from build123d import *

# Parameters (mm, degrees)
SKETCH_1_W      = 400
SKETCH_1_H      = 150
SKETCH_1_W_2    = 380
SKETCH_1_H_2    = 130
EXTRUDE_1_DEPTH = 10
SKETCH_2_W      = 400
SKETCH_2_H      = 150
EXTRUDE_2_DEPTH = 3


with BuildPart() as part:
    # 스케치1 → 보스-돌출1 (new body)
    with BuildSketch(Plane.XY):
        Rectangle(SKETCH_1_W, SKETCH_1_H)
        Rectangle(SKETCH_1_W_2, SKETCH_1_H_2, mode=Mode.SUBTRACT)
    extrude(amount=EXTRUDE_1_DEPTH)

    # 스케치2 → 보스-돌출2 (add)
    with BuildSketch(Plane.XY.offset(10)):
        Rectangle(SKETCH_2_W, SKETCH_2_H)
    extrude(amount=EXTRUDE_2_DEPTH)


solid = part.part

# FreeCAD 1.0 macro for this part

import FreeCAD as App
import Part
import Sketcher


def add_polygon(sketch, points):
    """Adds a closed chain of lines whose ends are joined by coincident constraints."""
    first, n = sketch.GeometryCount, len(points)
    for a, b in zip(points, points[1:] + points[:1]):
        sketch.addGeometry(Part.LineSegment(App.Vector(*a, 0), App.Vector(*b, 0)), False)
    for i in range(n):
        sketch.addConstraint(Sketcher.Constraint("Coincident", first + i, 2, first + (i + 1) % n, 1))

doc = App.newDocument("Part")
body = doc.addObject("PartDesign::Body", "Body")

# Sketch on XY plane
sketch1 = body.newObject("Sketcher::SketchObject", "Sketch")
sketch1.AttachmentSupport = (doc.getObject("XY_Plane"), [""])
sketch1.MapMode = "FlatFace"
add_polygon(sketch1, [(-200, 75), (-200, -75), (200, -75), (200, 75)])  # lines 0-3
add_polygon(sketch1, [(190, -65), (-190, -65), (-190, 65), (190, 65)])  # lines 4-7
sketch1.addConstraint([
    Sketcher.Constraint("Vertical", 0),
    Sketcher.Constraint("Horizontal", 1),
    Sketcher.Constraint("Vertical", 2),
    Sketcher.Constraint("Horizontal", 3),
    Sketcher.Constraint("Horizontal", 4),
    Sketcher.Constraint("Vertical", 5),
    Sketcher.Constraint("Horizontal", 6),
    Sketcher.Constraint("Vertical", 7),
    Sketcher.Constraint("Symmetric", 0, 2, 2, 2, -1, 1),
    Sketcher.Constraint("Symmetric", 4, 2, 6, 2, -1, 1),
    Sketcher.Constraint("DistanceX", 1, 1, 1, 2, 400.0),
    Sketcher.Constraint("DistanceX", 4, 2, 4, 1, 380.0),
    Sketcher.Constraint("DistanceY", 0, 2, 0, 1, 150.0),
    Sketcher.Constraint("DistanceY", 5, 1, 5, 2, 130.0),
])
pad1 = body.newObject("PartDesign::Pad", "Pad")
pad1.Profile = sketch1
pad1.Length = 10

# Sketch on XY plane
sketch2 = body.newObject("Sketcher::SketchObject", "Sketch001")
sketch2.AttachmentSupport = (doc.getObject("XY_Plane"), [""])
sketch2.MapMode = "FlatFace"
sketch2.AttachmentOffset = App.Placement(App.Vector(0, 0, 10), App.Rotation())
add_polygon(sketch2, [(-200, 75), (-200, -75), (200, -75), (200, 75)])  # lines 0-3
sketch2.addConstraint([
    Sketcher.Constraint("Vertical", 0),
    Sketcher.Constraint("Horizontal", 1),
    Sketcher.Constraint("Vertical", 2),
    Sketcher.Constraint("Horizontal", 3),
    Sketcher.Constraint("Symmetric", 0, 2, 2, 2, -1, 1),
    Sketcher.Constraint("DistanceX", 1, 1, 1, 2, 400.0),
    Sketcher.Constraint("DistanceY", 0, 2, 0, 1, 150.0),
])
pad2 = body.newObject("PartDesign::Pad", "Pad001")
pad2.Profile = sketch2
pad2.Length = 3

doc.recompute()
